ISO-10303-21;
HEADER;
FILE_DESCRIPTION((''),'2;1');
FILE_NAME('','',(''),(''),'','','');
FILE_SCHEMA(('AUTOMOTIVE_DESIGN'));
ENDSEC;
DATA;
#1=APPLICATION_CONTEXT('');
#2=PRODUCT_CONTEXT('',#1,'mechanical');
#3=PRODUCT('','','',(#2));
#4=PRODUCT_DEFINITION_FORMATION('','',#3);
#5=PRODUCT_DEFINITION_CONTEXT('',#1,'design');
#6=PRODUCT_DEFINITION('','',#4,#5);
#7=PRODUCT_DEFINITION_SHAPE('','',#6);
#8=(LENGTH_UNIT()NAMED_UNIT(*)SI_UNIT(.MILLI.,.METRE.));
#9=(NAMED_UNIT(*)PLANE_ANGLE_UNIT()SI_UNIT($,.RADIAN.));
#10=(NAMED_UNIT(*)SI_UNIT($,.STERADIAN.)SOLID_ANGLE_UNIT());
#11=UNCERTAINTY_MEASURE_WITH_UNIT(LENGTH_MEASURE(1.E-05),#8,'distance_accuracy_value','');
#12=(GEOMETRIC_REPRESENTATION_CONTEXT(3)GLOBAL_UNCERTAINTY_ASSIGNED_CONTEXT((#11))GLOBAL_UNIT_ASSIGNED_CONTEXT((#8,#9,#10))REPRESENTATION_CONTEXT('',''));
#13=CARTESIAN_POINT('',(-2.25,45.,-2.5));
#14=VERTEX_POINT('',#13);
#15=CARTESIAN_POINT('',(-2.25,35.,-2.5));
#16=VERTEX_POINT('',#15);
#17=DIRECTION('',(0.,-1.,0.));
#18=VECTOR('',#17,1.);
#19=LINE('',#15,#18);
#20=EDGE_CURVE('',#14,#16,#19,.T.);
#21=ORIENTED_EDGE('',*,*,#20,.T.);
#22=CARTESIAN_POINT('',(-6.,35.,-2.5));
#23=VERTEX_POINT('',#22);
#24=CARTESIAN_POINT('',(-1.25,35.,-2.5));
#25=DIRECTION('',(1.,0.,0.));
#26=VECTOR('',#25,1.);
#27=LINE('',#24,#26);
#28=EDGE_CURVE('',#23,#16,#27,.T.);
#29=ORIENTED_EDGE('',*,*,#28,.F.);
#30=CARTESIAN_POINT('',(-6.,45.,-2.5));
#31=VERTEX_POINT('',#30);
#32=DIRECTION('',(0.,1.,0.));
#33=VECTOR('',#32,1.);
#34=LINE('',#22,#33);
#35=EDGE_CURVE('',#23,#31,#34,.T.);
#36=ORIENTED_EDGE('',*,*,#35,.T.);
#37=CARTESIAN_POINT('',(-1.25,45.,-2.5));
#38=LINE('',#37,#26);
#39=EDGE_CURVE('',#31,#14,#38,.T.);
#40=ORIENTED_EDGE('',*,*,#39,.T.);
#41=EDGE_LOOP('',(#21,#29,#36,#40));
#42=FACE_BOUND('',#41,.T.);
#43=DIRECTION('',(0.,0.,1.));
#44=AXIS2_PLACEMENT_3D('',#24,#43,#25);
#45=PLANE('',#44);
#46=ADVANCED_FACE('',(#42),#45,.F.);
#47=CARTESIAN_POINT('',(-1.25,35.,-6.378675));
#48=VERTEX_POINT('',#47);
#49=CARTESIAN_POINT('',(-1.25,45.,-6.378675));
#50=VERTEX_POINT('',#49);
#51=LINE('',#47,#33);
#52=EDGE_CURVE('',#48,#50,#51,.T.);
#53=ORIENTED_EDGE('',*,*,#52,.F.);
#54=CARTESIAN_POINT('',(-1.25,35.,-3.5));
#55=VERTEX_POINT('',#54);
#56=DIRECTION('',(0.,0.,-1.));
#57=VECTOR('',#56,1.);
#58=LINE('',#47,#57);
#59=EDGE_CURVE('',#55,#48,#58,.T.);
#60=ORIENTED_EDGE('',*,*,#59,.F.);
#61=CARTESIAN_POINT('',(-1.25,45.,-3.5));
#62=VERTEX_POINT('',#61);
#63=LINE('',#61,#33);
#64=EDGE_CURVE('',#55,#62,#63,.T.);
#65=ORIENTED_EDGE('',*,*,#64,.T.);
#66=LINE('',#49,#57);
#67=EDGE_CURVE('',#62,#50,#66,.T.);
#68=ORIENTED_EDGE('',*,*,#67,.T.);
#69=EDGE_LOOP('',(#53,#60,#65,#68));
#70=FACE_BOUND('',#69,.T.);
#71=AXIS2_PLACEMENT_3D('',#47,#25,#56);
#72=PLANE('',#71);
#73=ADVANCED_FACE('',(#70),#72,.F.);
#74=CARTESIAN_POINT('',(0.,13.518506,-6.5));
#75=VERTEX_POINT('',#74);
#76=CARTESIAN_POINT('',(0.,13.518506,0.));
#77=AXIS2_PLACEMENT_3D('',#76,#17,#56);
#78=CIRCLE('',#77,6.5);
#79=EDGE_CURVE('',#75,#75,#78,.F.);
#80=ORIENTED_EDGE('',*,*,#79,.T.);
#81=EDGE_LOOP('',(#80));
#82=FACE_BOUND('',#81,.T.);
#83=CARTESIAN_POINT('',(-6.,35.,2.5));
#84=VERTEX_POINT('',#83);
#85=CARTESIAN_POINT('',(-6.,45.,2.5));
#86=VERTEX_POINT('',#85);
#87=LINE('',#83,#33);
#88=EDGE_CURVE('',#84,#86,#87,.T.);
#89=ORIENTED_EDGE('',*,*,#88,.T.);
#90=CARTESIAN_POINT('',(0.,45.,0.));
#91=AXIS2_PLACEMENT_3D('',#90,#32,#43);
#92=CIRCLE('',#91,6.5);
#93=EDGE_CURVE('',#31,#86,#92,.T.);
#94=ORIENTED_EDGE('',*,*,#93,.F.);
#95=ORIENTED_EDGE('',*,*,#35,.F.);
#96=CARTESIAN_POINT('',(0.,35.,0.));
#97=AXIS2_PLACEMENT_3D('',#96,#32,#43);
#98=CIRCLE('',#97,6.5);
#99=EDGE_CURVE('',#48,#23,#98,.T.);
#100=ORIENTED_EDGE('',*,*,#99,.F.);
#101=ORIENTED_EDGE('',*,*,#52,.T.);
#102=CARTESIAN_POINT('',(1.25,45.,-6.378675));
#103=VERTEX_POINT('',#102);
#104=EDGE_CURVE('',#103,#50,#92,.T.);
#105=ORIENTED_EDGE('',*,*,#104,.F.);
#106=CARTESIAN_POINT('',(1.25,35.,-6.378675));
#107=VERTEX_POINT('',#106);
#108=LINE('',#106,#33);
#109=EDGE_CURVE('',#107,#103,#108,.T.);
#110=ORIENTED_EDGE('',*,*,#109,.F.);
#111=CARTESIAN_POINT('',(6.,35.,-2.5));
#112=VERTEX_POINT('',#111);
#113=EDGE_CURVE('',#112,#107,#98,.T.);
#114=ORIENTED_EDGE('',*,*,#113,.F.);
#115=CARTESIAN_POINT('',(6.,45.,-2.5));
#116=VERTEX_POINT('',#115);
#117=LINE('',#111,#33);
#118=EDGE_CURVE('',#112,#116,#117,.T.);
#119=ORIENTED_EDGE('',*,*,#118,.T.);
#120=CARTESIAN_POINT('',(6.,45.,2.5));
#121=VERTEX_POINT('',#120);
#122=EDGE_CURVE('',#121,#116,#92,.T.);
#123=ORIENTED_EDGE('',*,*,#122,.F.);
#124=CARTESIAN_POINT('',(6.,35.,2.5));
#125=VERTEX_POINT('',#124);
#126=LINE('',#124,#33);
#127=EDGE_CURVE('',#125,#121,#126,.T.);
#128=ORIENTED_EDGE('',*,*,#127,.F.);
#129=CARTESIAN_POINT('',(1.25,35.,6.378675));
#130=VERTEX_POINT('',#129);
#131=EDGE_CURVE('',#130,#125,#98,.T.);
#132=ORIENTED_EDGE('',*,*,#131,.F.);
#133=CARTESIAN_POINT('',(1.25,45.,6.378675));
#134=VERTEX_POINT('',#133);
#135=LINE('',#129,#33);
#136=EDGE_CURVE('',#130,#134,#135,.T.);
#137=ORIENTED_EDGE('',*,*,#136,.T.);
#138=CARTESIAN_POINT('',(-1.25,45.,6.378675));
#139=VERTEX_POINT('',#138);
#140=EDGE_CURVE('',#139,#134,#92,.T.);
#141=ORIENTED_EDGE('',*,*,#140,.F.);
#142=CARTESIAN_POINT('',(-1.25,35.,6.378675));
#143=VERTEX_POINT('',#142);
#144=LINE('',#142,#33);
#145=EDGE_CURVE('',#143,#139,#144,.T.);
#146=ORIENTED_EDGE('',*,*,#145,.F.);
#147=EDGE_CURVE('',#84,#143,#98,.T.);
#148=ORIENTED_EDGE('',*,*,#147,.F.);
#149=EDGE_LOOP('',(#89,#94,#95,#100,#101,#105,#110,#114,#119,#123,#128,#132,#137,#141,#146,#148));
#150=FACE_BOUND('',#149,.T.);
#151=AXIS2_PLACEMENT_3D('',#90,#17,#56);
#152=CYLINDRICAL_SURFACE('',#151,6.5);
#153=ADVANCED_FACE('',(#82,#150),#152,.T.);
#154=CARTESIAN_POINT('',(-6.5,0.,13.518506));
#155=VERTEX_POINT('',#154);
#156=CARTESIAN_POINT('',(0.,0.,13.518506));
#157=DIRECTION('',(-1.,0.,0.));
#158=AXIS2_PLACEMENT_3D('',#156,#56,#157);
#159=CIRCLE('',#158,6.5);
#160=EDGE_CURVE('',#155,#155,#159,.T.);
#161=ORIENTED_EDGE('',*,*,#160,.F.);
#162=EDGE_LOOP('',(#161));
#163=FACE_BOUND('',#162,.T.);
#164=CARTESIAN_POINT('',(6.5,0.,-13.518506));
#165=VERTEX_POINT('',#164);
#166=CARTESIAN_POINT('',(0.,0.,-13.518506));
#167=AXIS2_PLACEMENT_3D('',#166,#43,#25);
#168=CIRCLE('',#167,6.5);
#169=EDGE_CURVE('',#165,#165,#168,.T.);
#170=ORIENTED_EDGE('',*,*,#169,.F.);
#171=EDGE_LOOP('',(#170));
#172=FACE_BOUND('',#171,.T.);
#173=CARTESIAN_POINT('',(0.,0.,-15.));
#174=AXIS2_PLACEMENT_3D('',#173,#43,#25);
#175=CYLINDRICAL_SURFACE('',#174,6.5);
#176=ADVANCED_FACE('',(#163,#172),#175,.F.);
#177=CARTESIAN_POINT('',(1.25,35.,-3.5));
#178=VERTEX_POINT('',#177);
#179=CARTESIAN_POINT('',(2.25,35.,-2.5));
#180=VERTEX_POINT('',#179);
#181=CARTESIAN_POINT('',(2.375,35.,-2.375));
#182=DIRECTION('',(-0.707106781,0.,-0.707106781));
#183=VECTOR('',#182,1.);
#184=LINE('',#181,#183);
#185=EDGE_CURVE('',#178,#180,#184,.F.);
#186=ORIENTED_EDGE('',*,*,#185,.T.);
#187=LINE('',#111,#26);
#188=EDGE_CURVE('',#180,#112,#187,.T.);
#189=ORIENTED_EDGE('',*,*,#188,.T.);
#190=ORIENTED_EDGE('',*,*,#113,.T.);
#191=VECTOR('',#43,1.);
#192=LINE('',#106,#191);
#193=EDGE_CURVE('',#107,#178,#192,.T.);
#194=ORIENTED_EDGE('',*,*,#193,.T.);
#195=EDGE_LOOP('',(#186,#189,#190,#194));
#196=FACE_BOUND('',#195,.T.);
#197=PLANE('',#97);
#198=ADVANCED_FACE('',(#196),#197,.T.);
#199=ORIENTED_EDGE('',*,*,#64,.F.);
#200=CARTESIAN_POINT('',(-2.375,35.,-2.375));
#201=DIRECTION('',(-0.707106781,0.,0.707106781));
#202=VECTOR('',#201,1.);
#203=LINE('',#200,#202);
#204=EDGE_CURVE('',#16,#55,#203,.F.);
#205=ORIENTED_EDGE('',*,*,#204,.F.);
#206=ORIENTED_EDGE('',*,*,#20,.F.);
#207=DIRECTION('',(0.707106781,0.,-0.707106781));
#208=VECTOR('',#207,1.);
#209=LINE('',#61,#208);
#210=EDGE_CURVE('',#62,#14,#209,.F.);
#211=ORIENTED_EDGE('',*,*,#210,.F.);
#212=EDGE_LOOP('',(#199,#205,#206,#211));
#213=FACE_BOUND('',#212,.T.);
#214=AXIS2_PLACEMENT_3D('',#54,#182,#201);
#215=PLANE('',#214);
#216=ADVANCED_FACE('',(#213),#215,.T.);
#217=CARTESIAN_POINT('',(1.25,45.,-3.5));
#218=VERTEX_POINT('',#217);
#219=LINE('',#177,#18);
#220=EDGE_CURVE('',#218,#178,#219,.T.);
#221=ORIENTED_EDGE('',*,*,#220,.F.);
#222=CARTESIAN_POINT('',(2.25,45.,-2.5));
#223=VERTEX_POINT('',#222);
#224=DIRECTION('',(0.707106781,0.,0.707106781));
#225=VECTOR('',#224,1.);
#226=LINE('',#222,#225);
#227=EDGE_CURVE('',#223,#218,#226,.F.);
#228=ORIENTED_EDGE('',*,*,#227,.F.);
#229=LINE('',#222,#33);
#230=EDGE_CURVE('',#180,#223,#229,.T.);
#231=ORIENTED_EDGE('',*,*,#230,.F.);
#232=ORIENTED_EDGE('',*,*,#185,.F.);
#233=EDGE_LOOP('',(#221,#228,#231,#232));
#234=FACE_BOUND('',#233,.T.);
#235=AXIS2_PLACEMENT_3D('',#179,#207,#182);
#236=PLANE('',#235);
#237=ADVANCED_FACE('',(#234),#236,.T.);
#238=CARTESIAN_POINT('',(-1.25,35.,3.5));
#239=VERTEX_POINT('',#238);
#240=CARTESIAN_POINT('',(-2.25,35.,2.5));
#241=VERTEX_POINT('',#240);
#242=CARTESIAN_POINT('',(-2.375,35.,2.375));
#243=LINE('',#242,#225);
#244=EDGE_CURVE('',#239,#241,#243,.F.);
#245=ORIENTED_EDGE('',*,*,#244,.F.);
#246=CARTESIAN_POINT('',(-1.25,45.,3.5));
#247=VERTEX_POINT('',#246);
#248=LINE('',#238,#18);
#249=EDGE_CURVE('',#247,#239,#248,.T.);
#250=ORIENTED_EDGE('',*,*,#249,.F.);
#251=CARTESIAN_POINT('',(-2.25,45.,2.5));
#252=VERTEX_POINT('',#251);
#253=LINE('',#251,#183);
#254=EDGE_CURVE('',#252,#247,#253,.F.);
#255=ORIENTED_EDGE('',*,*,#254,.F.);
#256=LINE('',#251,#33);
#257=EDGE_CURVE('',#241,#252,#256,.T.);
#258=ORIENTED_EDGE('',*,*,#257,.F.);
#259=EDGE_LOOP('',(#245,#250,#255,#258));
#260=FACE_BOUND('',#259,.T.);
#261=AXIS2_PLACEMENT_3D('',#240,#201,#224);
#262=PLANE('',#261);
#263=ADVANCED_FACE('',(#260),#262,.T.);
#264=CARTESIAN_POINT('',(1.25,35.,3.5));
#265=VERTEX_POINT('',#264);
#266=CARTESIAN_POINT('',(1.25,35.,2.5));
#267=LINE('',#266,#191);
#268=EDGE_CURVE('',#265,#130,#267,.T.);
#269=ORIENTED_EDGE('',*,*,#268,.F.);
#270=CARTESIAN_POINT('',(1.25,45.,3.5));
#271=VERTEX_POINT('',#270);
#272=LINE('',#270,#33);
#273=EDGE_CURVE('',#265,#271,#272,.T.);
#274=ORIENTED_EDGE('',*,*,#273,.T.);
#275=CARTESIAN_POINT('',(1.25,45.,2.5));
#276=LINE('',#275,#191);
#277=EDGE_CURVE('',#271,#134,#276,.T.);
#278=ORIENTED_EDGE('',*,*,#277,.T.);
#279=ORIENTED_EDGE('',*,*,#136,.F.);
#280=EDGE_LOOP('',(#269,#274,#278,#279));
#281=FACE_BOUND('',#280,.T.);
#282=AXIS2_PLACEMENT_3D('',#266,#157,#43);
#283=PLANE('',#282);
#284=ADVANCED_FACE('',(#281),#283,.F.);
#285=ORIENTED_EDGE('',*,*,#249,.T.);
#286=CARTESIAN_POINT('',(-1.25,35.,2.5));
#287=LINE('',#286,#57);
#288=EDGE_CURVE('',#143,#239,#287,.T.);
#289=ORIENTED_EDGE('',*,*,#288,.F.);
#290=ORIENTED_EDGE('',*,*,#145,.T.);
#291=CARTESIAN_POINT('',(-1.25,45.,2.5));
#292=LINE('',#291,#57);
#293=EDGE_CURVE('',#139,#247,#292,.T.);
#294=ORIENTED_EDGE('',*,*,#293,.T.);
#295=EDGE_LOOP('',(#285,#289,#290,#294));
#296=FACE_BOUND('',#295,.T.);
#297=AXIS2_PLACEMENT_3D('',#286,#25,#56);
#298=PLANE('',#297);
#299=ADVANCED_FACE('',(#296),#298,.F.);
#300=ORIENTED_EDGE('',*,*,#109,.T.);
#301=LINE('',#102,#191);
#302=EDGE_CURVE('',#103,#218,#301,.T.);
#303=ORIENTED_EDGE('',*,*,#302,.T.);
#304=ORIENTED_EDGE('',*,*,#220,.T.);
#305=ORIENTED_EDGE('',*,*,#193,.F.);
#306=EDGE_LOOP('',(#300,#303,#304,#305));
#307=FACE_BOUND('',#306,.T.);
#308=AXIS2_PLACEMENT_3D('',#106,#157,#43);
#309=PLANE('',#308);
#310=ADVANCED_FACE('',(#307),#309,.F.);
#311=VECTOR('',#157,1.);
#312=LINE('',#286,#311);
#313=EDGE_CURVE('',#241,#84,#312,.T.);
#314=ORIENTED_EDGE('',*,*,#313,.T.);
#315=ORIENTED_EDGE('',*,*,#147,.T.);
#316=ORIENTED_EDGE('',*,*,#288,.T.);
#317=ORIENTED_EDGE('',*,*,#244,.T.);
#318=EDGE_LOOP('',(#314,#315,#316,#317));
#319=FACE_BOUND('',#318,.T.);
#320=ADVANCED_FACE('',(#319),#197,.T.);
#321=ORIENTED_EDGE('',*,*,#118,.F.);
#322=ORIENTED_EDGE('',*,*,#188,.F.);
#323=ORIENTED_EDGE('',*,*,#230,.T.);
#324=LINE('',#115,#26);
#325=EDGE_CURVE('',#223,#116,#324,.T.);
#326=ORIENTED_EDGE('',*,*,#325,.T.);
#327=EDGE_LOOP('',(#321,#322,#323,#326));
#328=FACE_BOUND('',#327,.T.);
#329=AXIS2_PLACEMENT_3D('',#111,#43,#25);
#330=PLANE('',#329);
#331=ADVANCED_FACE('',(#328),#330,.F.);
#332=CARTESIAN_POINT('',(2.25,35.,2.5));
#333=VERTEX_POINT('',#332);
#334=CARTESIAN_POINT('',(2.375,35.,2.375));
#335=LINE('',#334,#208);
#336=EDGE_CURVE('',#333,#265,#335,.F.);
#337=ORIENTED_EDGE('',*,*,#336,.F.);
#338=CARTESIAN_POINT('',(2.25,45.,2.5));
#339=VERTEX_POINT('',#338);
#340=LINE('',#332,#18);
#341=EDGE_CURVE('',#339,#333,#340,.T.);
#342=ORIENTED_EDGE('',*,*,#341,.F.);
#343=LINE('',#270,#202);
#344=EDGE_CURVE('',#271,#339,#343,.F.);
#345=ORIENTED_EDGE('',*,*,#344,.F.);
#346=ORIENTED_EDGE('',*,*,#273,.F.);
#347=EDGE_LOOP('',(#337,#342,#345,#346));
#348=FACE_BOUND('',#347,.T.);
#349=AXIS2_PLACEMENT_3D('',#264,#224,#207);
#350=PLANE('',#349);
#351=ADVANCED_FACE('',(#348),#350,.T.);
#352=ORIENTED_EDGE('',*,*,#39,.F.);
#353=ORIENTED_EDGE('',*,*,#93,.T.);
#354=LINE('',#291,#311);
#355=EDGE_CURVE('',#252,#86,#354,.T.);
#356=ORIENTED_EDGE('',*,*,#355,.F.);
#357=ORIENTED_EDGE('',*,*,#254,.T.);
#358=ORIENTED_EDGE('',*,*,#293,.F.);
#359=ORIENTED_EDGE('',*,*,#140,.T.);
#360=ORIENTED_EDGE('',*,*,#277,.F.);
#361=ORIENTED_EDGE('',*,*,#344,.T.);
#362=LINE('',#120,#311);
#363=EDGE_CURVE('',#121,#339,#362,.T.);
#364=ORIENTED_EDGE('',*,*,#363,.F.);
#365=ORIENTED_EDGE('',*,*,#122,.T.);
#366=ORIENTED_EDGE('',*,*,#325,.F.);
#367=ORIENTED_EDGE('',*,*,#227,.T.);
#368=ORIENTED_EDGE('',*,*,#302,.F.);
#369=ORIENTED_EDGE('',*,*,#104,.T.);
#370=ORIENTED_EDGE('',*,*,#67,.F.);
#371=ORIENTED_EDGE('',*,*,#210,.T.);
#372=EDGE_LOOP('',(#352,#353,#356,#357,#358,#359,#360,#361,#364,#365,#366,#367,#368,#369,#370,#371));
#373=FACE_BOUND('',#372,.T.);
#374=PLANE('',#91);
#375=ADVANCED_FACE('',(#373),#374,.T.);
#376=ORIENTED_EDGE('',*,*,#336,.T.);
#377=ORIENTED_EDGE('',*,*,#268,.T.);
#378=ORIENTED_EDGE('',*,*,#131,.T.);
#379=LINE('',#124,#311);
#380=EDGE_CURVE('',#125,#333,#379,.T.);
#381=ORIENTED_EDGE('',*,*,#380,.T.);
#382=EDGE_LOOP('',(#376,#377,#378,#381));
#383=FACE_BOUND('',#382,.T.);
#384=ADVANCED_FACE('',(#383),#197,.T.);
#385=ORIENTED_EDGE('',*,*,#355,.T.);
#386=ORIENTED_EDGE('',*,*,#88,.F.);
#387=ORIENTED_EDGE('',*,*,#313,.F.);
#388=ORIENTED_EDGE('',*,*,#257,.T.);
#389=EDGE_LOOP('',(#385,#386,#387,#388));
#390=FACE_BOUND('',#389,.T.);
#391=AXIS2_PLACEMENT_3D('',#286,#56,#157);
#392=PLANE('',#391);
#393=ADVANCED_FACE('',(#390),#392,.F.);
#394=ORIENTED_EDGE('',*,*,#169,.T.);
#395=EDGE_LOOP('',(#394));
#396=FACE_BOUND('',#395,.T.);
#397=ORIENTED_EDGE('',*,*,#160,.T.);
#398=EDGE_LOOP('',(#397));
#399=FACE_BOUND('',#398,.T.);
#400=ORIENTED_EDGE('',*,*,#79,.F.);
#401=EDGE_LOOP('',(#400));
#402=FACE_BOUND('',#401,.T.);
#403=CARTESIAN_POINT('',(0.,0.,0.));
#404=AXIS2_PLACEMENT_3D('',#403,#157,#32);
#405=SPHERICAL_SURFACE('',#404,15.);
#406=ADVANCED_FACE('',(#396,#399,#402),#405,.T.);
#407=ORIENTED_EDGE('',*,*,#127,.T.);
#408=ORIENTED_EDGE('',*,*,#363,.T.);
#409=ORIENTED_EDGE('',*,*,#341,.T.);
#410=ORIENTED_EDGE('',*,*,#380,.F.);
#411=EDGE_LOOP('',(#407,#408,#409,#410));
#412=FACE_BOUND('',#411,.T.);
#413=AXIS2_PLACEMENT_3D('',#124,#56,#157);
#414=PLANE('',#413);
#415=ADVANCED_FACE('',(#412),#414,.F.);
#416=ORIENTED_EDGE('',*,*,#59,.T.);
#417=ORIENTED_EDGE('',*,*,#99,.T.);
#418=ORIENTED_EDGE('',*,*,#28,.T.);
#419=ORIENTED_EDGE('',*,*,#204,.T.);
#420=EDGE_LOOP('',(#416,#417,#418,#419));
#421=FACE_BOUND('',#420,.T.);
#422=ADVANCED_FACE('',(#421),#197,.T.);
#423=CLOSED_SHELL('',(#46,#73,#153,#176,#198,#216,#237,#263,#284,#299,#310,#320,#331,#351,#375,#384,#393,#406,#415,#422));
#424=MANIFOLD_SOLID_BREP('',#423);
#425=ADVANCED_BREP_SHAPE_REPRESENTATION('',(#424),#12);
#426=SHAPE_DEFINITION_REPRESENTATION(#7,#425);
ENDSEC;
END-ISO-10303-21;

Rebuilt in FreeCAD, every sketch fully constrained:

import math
import FreeCAD as App
import Part
import Sketcher
from FreeCAD import Vector


def edges_at(feature, points):
    """Names of the edges that pass closest to the given points."""
    edges = feature.Shape.Edges
    near = lambda p: min(range(len(edges)), key=lambda i: edges[i].distToShape(Part.Vertex(*p))[0])
    return sorted({f"Edge{near(p) + 1}" for p in points})

doc = App.newDocument("Part")
body = doc.addObject("PartDesign::Body", "Body")

sketch1 = body.newObject("Sketcher::SketchObject", "Sketch")
sketch1.AttachmentSupport = (doc.getObject("XY_Plane"), [""])
sketch1.MapMode = "FlatFace"
sketch1.addGeometry([
    Part.LineSegment(Vector(-15, 0, 0), Vector(15, 0, 0)),
    Part.ArcOfCircle(Part.Circle(Vector(0, 0, 0), Vector(0, 0, 1), 15), math.radians(0), math.radians(180)),
], False)
sketch1.addConstraint([
    Sketcher.Constraint("Coincident", 0, 1, 1, 2),
    Sketcher.Constraint("Coincident", 1, 1, 0, 2),
    Sketcher.Constraint("Horizontal", 0),
    Sketcher.Constraint("Coincident", 1, 3, -1, 1),
    Sketcher.Constraint("PointOnObject", 0, 1, -1),
    Sketcher.Constraint("Radius", 1, 15.0),
])
revolution = body.newObject("PartDesign::Revolution", "Revolution")
revolution.Profile = sketch1
revolution.ReferenceAxis = (sketch1, ["H_Axis"])
revolution.Angle = 360

sketch2 = body.newObject("Sketcher::SketchObject", "Sketch001")
sketch2.AttachmentSupport = (doc.getObject("XZ_Plane"), [""])
sketch2.MapMode = "FlatFace"
sketch2.addGeometry(Part.Circle(Vector(0, 0, 0), Vector(0, 0, 1), 6), False)
sketch2.addConstraint([
    Sketcher.Constraint("Coincident", 0, 3, -1, 1),
    Sketcher.Constraint("Diameter", 0, 13.0),
])
pad1 = body.newObject("PartDesign::Pad", "Pad")
pad1.Profile = sketch2
pad1.Length = 45
pad1.Reversed = True

sketch3 = body.newObject("Sketcher::SketchObject", "Sketch002")
sketch3.AttachmentSupport = (doc.getObject("XZ_Plane"), [""])
sketch3.MapMode = "FlatFace"
sketch3.AttachmentOffset = App.Placement(Vector(0, 0, -45), App.Rotation())
sketch3.addGeometry([
    Part.LineSegment(Vector(1.2, -6.4, 0), Vector(1.2, -2.5, 0)),
    Part.LineSegment(Vector(1.2, -2.5, 0), Vector(6, -2.5, 0)),
    Part.ArcOfCircle(Part.Circle(Vector(0, 0, 0), Vector(0, 0, 1), 6.5), math.radians(-79), math.radians(-23)),
    Part.LineSegment(Vector(-1.2, -2.5, 0), Vector(-1.2, -6.4, 0)),
    Part.ArcOfCircle(Part.Circle(Vector(0, 0, 0), Vector(0, 0, 1), 6.5), math.radians(-157), math.radians(-101)),
    Part.LineSegment(Vector(-6, -2.5, 0), Vector(-1.2, -2.5, 0)),
    Part.LineSegment(Vector(6, 2.5, 0), Vector(1.2, 2.5, 0)),
    Part.LineSegment(Vector(1.2, 2.5, 0), Vector(1.2, 6.4, 0)),
    Part.ArcOfCircle(Part.Circle(Vector(0, 0, 0), Vector(0, 0, 1), 6.5), math.radians(23), math.radians(79)),
    Part.LineSegment(Vector(-1.2, 6.4, 0), Vector(-1.2, 2.5, 0)),
    Part.LineSegment(Vector(-1.2, 2.5, 0), Vector(-6, 2.5, 0)),
    Part.ArcOfCircle(Part.Circle(Vector(0, 0, 0), Vector(0, 0, 1), 6.5), math.radians(101), math.radians(157)),
], False)
sketch3.addConstraint([
    Sketcher.Constraint("Coincident", 0, 2, 1, 1),
    Sketcher.Constraint("Coincident", 1, 2, 2, 2),
    Sketcher.Constraint("Coincident", 2, 1, 0, 1),
    Sketcher.Constraint("Coincident", 3, 2, 4, 2),
    Sketcher.Constraint("Coincident", 4, 1, 5, 1),
    Sketcher.Constraint("Coincident", 5, 2, 3, 1),
    Sketcher.Constraint("Coincident", 6, 2, 7, 1),
    Sketcher.Constraint("Coincident", 7, 2, 8, 2),
    Sketcher.Constraint("Coincident", 8, 1, 6, 1),
    Sketcher.Constraint("Coincident", 9, 2, 10, 1),
    Sketcher.Constraint("Coincident", 10, 2, 11, 2),
    Sketcher.Constraint("Coincident", 11, 1, 9, 1),
    Sketcher.Constraint("Vertical", 0),
    Sketcher.Constraint("Horizontal", 1),
    Sketcher.Constraint("Vertical", 3),
    Sketcher.Constraint("Horizontal", 5),
    Sketcher.Constraint("Horizontal", 6),
    Sketcher.Constraint("Vertical", 7),
    Sketcher.Constraint("Vertical", 9),
    Sketcher.Constraint("Horizontal", 10),
    Sketcher.Constraint("Coincident", 2, 3, -1, 1),
    Sketcher.Constraint("Coincident", 4, 3, -1, 1),
    Sketcher.Constraint("Coincident", 8, 3, -1, 1),
    Sketcher.Constraint("Coincident", 11, 3, -1, 1),
    Sketcher.Constraint("Equal", 2, 4),
    Sketcher.Constraint("Equal", 4, 8),
    Sketcher.Constraint("Equal", 8, 11),
    Sketcher.Constraint("Symmetric", 5, 2, 6, 2, -1, 1),
    Sketcher.Constraint("Symmetric", 0, 2, 9, 2, -1, 1),
    Sketcher.Constraint("Symmetric", 0, 2, 5, 2, -2),
    Sketcher.Constraint("Radius", 2, 6.5),
    Sketcher.Constraint("DistanceX", -1, 1, 1, 2, 6.0),
    Sketcher.Constraint("DistanceX", 1, 1, 1, 2, 4.75),
])
pocket1 = body.newObject("PartDesign::Pocket", "Pocket")
pocket1.Profile = sketch3
pocket1.Length = 10
pocket1.Reversed = True
doc.recompute()

chamfer = body.newObject("PartDesign::Chamfer", "Chamfer")
chamfer.Base = (pocket1, edges_at(pocket1, [
    (-1.25, 40, -2.5),
    (-1.25, 40, 2.5),
    (1.25, 40, -2.5),
    (1.25, 40, 2.5),
]))
chamfer.Size = 1

sketch4 = body.newObject("Sketcher::SketchObject", "Sketch003")
sketch4.AttachmentSupport = (doc.getObject("XY_Plane"), [""])
sketch4.MapMode = "FlatFace"
sketch4.addGeometry(Part.Circle(Vector(0, 0, 0), Vector(0, 0, 1), 6), False)
sketch4.addConstraint([
    Sketcher.Constraint("Coincident", 0, 3, -1, 1),
    Sketcher.Constraint("Diameter", 0, 13.0),
])
pocket2 = body.newObject("PartDesign::Pocket", "Pocket001")
pocket2.Profile = sketch4
pocket2.Type = "ThroughAll"
pocket2.Midplane = True

doc.recompute()
